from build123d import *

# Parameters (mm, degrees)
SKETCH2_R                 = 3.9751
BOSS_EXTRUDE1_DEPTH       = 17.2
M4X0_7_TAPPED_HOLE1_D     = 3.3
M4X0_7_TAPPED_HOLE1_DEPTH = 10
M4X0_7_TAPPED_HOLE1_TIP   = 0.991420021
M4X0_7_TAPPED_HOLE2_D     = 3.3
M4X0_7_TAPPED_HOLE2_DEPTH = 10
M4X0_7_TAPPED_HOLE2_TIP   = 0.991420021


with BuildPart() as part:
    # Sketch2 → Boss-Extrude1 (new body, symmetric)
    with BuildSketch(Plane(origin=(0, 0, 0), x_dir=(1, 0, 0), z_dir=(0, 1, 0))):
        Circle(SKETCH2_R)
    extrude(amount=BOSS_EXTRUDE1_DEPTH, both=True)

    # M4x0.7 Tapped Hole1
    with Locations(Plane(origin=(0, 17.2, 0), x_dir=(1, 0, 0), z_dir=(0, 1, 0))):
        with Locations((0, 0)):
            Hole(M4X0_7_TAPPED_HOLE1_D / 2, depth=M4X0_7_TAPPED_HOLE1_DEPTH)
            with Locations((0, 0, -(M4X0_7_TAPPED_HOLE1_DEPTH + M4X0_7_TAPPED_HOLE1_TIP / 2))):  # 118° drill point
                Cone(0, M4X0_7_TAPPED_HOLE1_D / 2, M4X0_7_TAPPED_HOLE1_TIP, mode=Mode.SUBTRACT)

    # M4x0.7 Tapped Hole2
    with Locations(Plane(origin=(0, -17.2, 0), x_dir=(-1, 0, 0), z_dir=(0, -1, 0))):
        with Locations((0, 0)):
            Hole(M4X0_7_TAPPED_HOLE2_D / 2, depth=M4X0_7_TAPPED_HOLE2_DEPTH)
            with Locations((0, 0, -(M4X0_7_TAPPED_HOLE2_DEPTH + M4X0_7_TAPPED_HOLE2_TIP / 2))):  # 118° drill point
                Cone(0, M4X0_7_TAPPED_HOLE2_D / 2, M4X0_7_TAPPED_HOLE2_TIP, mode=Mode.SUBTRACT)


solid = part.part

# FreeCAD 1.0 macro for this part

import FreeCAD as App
import Part
import Sketcher

V = App.Vector
Q = App.Units.Quantity

doc = App.newDocument("Part")
params = doc.addObject("Spreadsheet::Sheet", "Params")
for row, (alias, value) in enumerate([
    ("pad1_length", "34.4 mm"),
    ("sketch2_diameter", "3.3 mm"),
    ("hole_diameter", "3.3 mm"),
    ("hole_depth", "10 mm"),
    ("sketch3_diameter", "3.3 mm"),
    ("hole2_diameter", "3.3 mm"),
    ("hole2_depth", "10 mm"),
], start=1):
    params.set(f"A{row}", alias)
    params.set(f"B{row}", "=" + value)
    params.setAlias(f"B{row}", alias)

body = doc.addObject("PartDesign::Body", "Body")

# Sketch on XZ plane
sketch1 = doc.addObject("Sketcher::SketchObject", "Sketch")
body.addObject(sketch1)
sketch1.AttachmentSupport = (doc.XZ_Plane, [""])
sketch1.MapMode = "FlatFace"
sketch1.addGeometry(Part.Circle(V(0, 0, 0), V(0, 0, 1), 4), False)
sketch1.addConstraint(Sketcher.Constraint("Coincident", 0, 3, -1, 1))
sketch1.addConstraint(Sketcher.Constraint("Diameter", 0, Q("7.9502 mm")))
pad1 = doc.addObject("PartDesign::Pad", "Pad")
body.addObject(pad1)
pad1.Profile = sketch1
pad1.setExpression("Length", "Params.pad1_length")
pad1.Midplane = True

# Sketch on XZ plane
sketch2 = doc.addObject("Sketcher::SketchObject", "Sketch001")
body.addObject(sketch2)
sketch2.AttachmentSupport = (doc.XZ_Plane, [""])
sketch2.MapMode = "FlatFace"
sketch2.AttachmentOffset = App.Placement(V(0, 0, -17.2), App.Rotation())
sketch2.addGeometry(Part.Circle(V(0, 0, 0), V(0, 0, 1), 1.6), False)
sketch2.addConstraint(Sketcher.Constraint("Coincident", 0, 3, -1, 1))
sketch2.addConstraint(Sketcher.Constraint("Diameter", 0, Q("3.3 mm")))
sketch2.setExpression("Constraints[1]", "Params.sketch2_diameter")
doc.recompute()
hole = doc.addObject("PartDesign::Hole", "Hole")
body.addObject(hole)
hole.Profile = sketch2
hole.ThreadType = "None"
hole.setExpression("Diameter", "Params.hole_diameter")
hole.DepthType = "Dimension"
hole.setExpression("Depth", "Params.hole_depth")
hole.DrillPoint = "Angled"
hole.DrillPointAngle = 118
hole.Reversed = True

# Sketch on XZ plane
sketch3 = doc.addObject("Sketcher::SketchObject", "Sketch002")
body.addObject(sketch3)
sketch3.AttachmentSupport = (doc.XZ_Plane, [""])
sketch3.MapMode = "FlatFace"
sketch3.AttachmentOffset = App.Placement(V(0, 0, 17.2), App.Rotation())
sketch3.addGeometry(Part.Circle(V(0, 0, 0), V(0, 0, 1), 1.6), False)
sketch3.addConstraint(Sketcher.Constraint("Coincident", 0, 3, -1, 1))
sketch3.addConstraint(Sketcher.Constraint("Diameter", 0, Q("3.3 mm")))
sketch3.setExpression("Constraints[1]", "Params.sketch3_diameter")
doc.recompute()
hole2 = doc.addObject("PartDesign::Hole", "Hole001")
body.addObject(hole2)
hole2.Profile = sketch3
hole2.ThreadType = "None"
hole2.setExpression("Diameter", "Params.hole2_diameter")
hole2.DepthType = "Dimension"
hole2.setExpression("Depth", "Params.hole2_depth")
hole2.DrillPoint = "Angled"
hole2.DrillPointAngle = 118

doc.recompute()
